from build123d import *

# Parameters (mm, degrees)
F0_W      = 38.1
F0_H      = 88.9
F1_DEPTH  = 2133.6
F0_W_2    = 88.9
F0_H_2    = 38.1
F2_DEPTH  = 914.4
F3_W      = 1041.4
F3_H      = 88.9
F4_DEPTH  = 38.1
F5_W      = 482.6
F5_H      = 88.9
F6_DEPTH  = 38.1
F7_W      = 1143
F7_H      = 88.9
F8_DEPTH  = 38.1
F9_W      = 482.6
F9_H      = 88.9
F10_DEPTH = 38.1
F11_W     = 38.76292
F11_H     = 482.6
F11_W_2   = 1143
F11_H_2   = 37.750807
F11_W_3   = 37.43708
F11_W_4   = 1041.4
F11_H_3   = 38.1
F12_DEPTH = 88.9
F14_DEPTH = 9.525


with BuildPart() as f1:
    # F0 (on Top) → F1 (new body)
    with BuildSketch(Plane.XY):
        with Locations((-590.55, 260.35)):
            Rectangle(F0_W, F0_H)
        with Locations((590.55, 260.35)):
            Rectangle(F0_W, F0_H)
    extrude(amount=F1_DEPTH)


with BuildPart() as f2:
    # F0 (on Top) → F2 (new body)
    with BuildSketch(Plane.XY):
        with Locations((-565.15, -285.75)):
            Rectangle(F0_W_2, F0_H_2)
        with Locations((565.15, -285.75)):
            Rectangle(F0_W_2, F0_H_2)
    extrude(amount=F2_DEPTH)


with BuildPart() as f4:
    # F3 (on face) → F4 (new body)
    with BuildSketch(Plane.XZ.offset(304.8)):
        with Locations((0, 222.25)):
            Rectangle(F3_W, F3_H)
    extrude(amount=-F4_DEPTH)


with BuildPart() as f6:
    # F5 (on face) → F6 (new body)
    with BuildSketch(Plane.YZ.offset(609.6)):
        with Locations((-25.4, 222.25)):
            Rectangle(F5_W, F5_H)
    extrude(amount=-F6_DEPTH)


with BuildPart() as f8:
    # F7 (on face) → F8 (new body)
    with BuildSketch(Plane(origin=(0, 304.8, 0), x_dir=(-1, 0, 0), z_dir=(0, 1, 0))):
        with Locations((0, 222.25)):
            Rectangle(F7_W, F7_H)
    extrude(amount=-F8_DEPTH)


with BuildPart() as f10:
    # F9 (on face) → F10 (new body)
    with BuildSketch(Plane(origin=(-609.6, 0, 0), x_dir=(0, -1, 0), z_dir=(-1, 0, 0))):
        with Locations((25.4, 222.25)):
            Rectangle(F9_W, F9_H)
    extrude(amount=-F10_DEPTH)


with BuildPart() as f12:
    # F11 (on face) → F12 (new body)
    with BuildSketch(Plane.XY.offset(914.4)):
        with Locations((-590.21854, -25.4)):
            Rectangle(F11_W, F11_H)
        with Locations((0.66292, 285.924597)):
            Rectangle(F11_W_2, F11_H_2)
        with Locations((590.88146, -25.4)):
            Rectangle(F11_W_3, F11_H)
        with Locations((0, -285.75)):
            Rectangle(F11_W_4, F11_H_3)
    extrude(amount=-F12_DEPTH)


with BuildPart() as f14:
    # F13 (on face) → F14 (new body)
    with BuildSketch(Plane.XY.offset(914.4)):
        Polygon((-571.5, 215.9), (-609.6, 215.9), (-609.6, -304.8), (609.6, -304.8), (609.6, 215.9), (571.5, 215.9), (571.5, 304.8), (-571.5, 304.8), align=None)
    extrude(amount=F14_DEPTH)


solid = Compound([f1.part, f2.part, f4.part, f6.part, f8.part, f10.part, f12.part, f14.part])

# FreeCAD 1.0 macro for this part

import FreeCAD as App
import Part
import Sketcher

V = App.Vector
Q = App.Units.Quantity


def add_polygon(sketch, points):
    """Adds a closed chain of lines whose ends are joined by coincident constraints."""
    first, n = sketch.GeometryCount, len(points)
    for a, b in zip(points, points[1:] + points[:1]):
        sketch.addGeometry(Part.LineSegment(App.Vector(*a, 0), App.Vector(*b, 0)), False)
    for i in range(n):
        sketch.addConstraint(Sketcher.Constraint("Coincident", first + i, 2, first + (i + 1) % n, 1))

doc = App.newDocument("Part")
params = doc.addObject("Spreadsheet::Sheet", "Params")
for row, (alias, value) in enumerate([
    ("sketch1_width", "1.5 in"),
    ("sketch1_height", "3.5 in"),
    ("pad1_length", "84 in"),
    ("sketch2_width", "3.5 in"),
    ("sketch2_height", "1.5 in"),
    ("pad2_length", "36 in"),
    ("sketch3_width", "41 in"),
    ("sketch3_height", "3.5 in"),
    ("pad3_length", "1.5 in"),
    ("sketch4_width", "19 in"),
    ("sketch4_height", "3.5 in"),
    ("pad4_length", "1.5 in"),
    ("sketch5_width", "45 in"),
    ("sketch5_height", "3.5 in"),
    ("pad5_length", "1.5 in"),
    ("sketch6_width", "19 in"),
    ("sketch6_height", "3.5 in"),
    ("pad6_length", "1.5 in"),
    ("sketch7_width", "45 in"),
    ("sketch7_width2", "41 in"),
    ("sketch7_height", "19 in"),
    ("sketch7_height2", "1.5 in"),
    ("pad7_length", "3.5 in"),
    ("sketch8_width", "48 in"),
    ("sketch8_width2", "45 in"),
    ("sketch8_height", "20.5 in"),
    ("sketch8_height2", "3.5 in"),
    ("pad8_length", "0.375 in"),
], start=1):
    params.set(f"A{row}", alias)
    params.set(f"B{row}", "=" + value)
    params.setAlias(f"B{row}", alias)

body = doc.addObject("PartDesign::Body", "Body")
body.AllowCompound = True

# Sketch on XY plane
sketch1 = doc.addObject("Sketcher::SketchObject", "Sketch")
body.addObject(sketch1)
sketch1.AttachmentSupport = (doc.XY_Plane, [""])
sketch1.MapMode = "FlatFace"
add_polygon(sketch1, [(-609.6, 304.8), (-609.6, 215.9), (-571.5, 215.9), (-571.5, 304.8)])  # lines 0-3
add_polygon(sketch1, [(571.5, 304.8), (571.5, 215.9), (609.6, 215.9), (609.6, 304.8)])  # lines 4-7
sketch1.addConstraint([
    Sketcher.Constraint("Vertical", 0),
    Sketcher.Constraint("Horizontal", 1),
    Sketcher.Constraint("Vertical", 2),
    Sketcher.Constraint("Horizontal", 3),
    Sketcher.Constraint("Vertical", 4),
    Sketcher.Constraint("Horizontal", 5),
    Sketcher.Constraint("Vertical", 6),
    Sketcher.Constraint("Horizontal", 7),
    Sketcher.Constraint("Symmetric", 1, 2, 4, 2, -2),
    Sketcher.Constraint("Symmetric", 3, 2, 6, 2, -2),
    Sketcher.Constraint("DistanceX", 1, 1, 1, 2, Q("1.5 in")),
    Sketcher.Constraint("DistanceY", 0, 2, 0, 1, Q("3.5 in")),
    Sketcher.Constraint("DistanceX", 0, 2, -1, 1, Q("24 in")),
    Sketcher.Constraint("DistanceY", -1, 1, 2, 2, Q("12 in")),
])
sketch1.setExpression("Constraints[18]", "Params.sketch1_width")
sketch1.setExpression("Constraints[19]", "Params.sketch1_height")
pad1 = doc.addObject("PartDesign::Pad", "Pad")
body.addObject(pad1)
pad1.Profile = sketch1
pad1.setExpression("Length", "Params.pad1_length")
body2 = doc.addObject("PartDesign::Body", "Body001")
body2.AllowCompound = True

# Sketch on XY plane
sketch2 = doc.addObject("Sketcher::SketchObject", "Sketch001")
body2.addObject(sketch2)
sketch2.AttachmentSupport = (doc.getObject("XY_Plane001"), [""])
sketch2.MapMode = "FlatFace"
add_polygon(sketch2, [(-609.6, -266.7), (-609.6, -304.8), (-520.7, -304.8), (-520.7, -266.7)])  # lines 0-3
add_polygon(sketch2, [(520.7, -266.7), (520.7, -304.8), (609.6, -304.8), (609.6, -266.7)])  # lines 4-7
sketch2.addConstraint([
    Sketcher.Constraint("Vertical", 0),
    Sketcher.Constraint("Horizontal", 1),
    Sketcher.Constraint("Vertical", 2),
    Sketcher.Constraint("Horizontal", 3),
    Sketcher.Constraint("Vertical", 4),
    Sketcher.Constraint("Horizontal", 5),
    Sketcher.Constraint("Vertical", 6),
    Sketcher.Constraint("Horizontal", 7),
    Sketcher.Constraint("Symmetric", 1, 2, 4, 2, -2),
    Sketcher.Constraint("Symmetric", 3, 2, 6, 2, -2),
    Sketcher.Constraint("DistanceX", 1, 1, 1, 2, Q("3.5 in")),
    Sketcher.Constraint("DistanceY", 0, 2, 0, 1, Q("1.5 in")),
    Sketcher.Constraint("DistanceX", 0, 2, -1, 1, Q("24 in")),
    Sketcher.Constraint("DistanceY", 0, 2, -1, 1, Q("12 in")),
])
sketch2.setExpression("Constraints[18]", "Params.sketch2_width")
sketch2.setExpression("Constraints[19]", "Params.sketch2_height")
pad2 = doc.addObject("PartDesign::Pad", "Pad001")
body2.addObject(pad2)
pad2.Profile = sketch2
pad2.setExpression("Length", "Params.pad2_length")
body3 = doc.addObject("PartDesign::Body", "Body002")

# Sketch on XZ plane
sketch3 = doc.addObject("Sketcher::SketchObject", "Sketch002")
body3.addObject(sketch3)
sketch3.AttachmentSupport = (doc.getObject("XZ_Plane002"), [""])
sketch3.MapMode = "FlatFace"
sketch3.AttachmentOffset = App.Placement(V(0, 0, 12 * 25.4), App.Rotation())
add_polygon(sketch3, [(-520.7, 266.7), (-520.7, 177.8), (520.7, 177.8), (520.7, 266.7)])  # lines 0-3
sketch3.addConstraint([
    Sketcher.Constraint("Vertical", 0),
    Sketcher.Constraint("Horizontal", 1),
    Sketcher.Constraint("Vertical", 2),
    Sketcher.Constraint("Horizontal", 3),
    Sketcher.Constraint("DistanceX", 1, 1, 1, 2, Q("41 in")),
    Sketcher.Constraint("DistanceY", 0, 2, 0, 1, Q("3.5 in")),
    Sketcher.Constraint("DistanceY", -1, 1, 0, 2, Q("7 in")),
    Sketcher.Constraint("DistanceX", 0, 2, -1, 1, Q("20.5 in")),
])
sketch3.setExpression("Constraints[8]", "Params.sketch3_width")
sketch3.setExpression("Constraints[9]", "Params.sketch3_height")
pad3 = doc.addObject("PartDesign::Pad", "Pad002")
body3.addObject(pad3)
pad3.Profile = sketch3
pad3.setExpression("Length", "Params.pad3_length")
pad3.Reversed = True
body4 = doc.addObject("PartDesign::Body", "Body003")

# Sketch on YZ plane
sketch4 = doc.addObject("Sketcher::SketchObject", "Sketch003")
body4.addObject(sketch4)
sketch4.AttachmentSupport = (doc.getObject("YZ_Plane003"), [""])
sketch4.MapMode = "FlatFace"
sketch4.AttachmentOffset = App.Placement(V(0, 0, 24 * 25.4), App.Rotation())
add_polygon(sketch4, [(-266.7, 266.7), (-266.7, 177.8), (215.9, 177.8), (215.9, 266.7)])  # lines 0-3
sketch4.addConstraint([
    Sketcher.Constraint("Vertical", 0),
    Sketcher.Constraint("Horizontal", 1),
    Sketcher.Constraint("Vertical", 2),
    Sketcher.Constraint("Horizontal", 3),
    Sketcher.Constraint("DistanceX", 1, 1, 1, 2, Q("19 in")),
    Sketcher.Constraint("DistanceY", 0, 2, 0, 1, Q("3.5 in")),
    Sketcher.Constraint("DistanceY", -1, 1, 0, 2, Q("7 in")),
    Sketcher.Constraint("DistanceX", 0, 2, -1, 1, Q("10.5 in")),
])
sketch4.setExpression("Constraints[8]", "Params.sketch4_width")
sketch4.setExpression("Constraints[9]", "Params.sketch4_height")
pad4 = doc.addObject("PartDesign::Pad", "Pad003")
body4.addObject(pad4)
pad4.Profile = sketch4
pad4.setExpression("Length", "Params.pad4_length")
pad4.Reversed = True
body5 = doc.addObject("PartDesign::Body", "Body004")

# Sketch on XZ plane
sketch5 = doc.addObject("Sketcher::SketchObject", "Sketch004")
body5.addObject(sketch5)
sketch5.AttachmentSupport = (doc.getObject("XZ_Plane004"), [""])
sketch5.MapMode = "FlatFace"
sketch5.AttachmentOffset = App.Placement(V(0, 0, -12 * 25.4), App.Rotation())
add_polygon(sketch5, [(571.5, 266.7), (571.5, 177.8), (-571.5, 177.8), (-571.5, 266.7)])  # lines 0-3
sketch5.addConstraint([
    Sketcher.Constraint("Vertical", 0),
    Sketcher.Constraint("Horizontal", 1),
    Sketcher.Constraint("Vertical", 2),
    Sketcher.Constraint("Horizontal", 3),
    Sketcher.Constraint("DistanceX", 1, 2, 1, 1, Q("45 in")),
    Sketcher.Constraint("DistanceY", 0, 2, 0, 1, Q("3.5 in")),
    Sketcher.Constraint("DistanceY", -1, 1, 0, 2, Q("7 in")),
    Sketcher.Constraint("DistanceX", -1, 1, 0, 2, Q("22.5 in")),
])
sketch5.setExpression("Constraints[8]", "Params.sketch5_width")
sketch5.setExpression("Constraints[9]", "Params.sketch5_height")
pad5 = doc.addObject("PartDesign::Pad", "Pad004")
body5.addObject(pad5)
pad5.Profile = sketch5
pad5.setExpression("Length", "Params.pad5_length")
body6 = doc.addObject("PartDesign::Body", "Body005")

# Sketch on YZ plane
sketch6 = doc.addObject("Sketcher::SketchObject", "Sketch005")
body6.addObject(sketch6)
sketch6.AttachmentSupport = (doc.getObject("YZ_Plane005"), [""])
sketch6.MapMode = "FlatFace"
sketch6.AttachmentOffset = App.Placement(V(0, 0, -24 * 25.4), App.Rotation())
add_polygon(sketch6, [(215.9, 266.7), (215.9, 177.8), (-266.7, 177.8), (-266.7, 266.7)])  # lines 0-3
sketch6.addConstraint([
    Sketcher.Constraint("Vertical", 0),
    Sketcher.Constraint("Horizontal", 1),
    Sketcher.Constraint("Vertical", 2),
    Sketcher.Constraint("Horizontal", 3),
    Sketcher.Constraint("DistanceX", 1, 2, 1, 1, Q("19 in")),
    Sketcher.Constraint("DistanceY", 0, 2, 0, 1, Q("3.5 in")),
    Sketcher.Constraint("DistanceY", -1, 1, 0, 2, Q("7 in")),
    Sketcher.Constraint("DistanceX", -1, 1, 0, 2, Q("8.5 in")),
])
sketch6.setExpression("Constraints[8]", "Params.sketch6_width")
sketch6.setExpression("Constraints[9]", "Params.sketch6_height")
pad6 = doc.addObject("PartDesign::Pad", "Pad005")
body6.addObject(pad6)
pad6.Profile = sketch6
pad6.setExpression("Length", "Params.pad6_length")
body7 = doc.addObject("PartDesign::Body", "Body006")
body7.AllowCompound = True

# Sketch on XY plane
sketch7 = doc.addObject("Sketcher::SketchObject", "Sketch006")
body7.addObject(sketch7)
sketch7.AttachmentSupport = (doc.getObject("XY_Plane006"), [""])
sketch7.MapMode = "FlatFace"
sketch7.AttachmentOffset = App.Placement(V(0, 0, 36 * 25.4), App.Rotation())
add_polygon(sketch7, [(-609.6, 215.9), (-609.6, -266.7), (-570.83708, -266.7), (-570.83708, 215.9)])  # lines 0-3
add_polygon(sketch7, [(-570.83708, 304.800001), (-570.83708, 267.049194), (572.16292, 267.049194), (572.16292, 304.800001)])  # lines 4-7
add_polygon(sketch7, [(572.16292, 215.9), (572.16292, -266.7), (609.6, -266.7), (609.6, 215.9)])  # lines 8-11
add_polygon(sketch7, [(-520.7, -266.7), (-520.7, -304.8), (520.7, -304.8), (520.7, -266.7)])  # lines 12-15
sketch7.addConstraint([
    Sketcher.Constraint("Vertical", 0),
    Sketcher.Constraint("Horizontal", 1),
    Sketcher.Constraint("Vertical", 2),
    Sketcher.Constraint("Horizontal", 3),
    Sketcher.Constraint("Vertical", 4),
    Sketcher.Constraint("Horizontal", 5),
    Sketcher.Constraint("Vertical", 6),
    Sketcher.Constraint("Horizontal", 7),
    Sketcher.Constraint("Vertical", 8),
    Sketcher.Constraint("Horizontal", 9),
    Sketcher.Constraint("Vertical", 10),
    Sketcher.Constraint("Horizontal", 11),
    Sketcher.Constraint("Vertical", 12),
    Sketcher.Constraint("Horizontal", 13),
    Sketcher.Constraint("Vertical", 14),
    Sketcher.Constraint("Horizontal", 15),
    Sketcher.Constraint("Symmetric", 0, 2, 9, 2, -2),
    Sketcher.Constraint("Horizontal", 3, 2, 10, 2),
    Sketcher.Constraint("Horizontal", 9, 2, 14, 2),
    Sketcher.Constraint("Vertical", 2, 2, 4, 2),
    Sketcher.Constraint("Vertical", 6, 2, 8, 2),
    Sketcher.Constraint("DistanceX", 5, 1, 5, 2, Q("45 in")),
    Sketcher.Constraint("DistanceX", 13, 1, 13, 2, Q("41 in")),
    Sketcher.Constraint("DistanceY", 0, 2, 0, 1, Q("19 in")),
    Sketcher.Constraint("DistanceY", 12, 2, 12, 1, Q("1.5 in")),
    Sketcher.Constraint("DistanceX", 0, 2, -1, 1, Q("24 in")),
    Sketcher.Constraint("DistanceY", -1, 1, 6, 2, Q("12 in")),
    Sketcher.Constraint("DistanceY", 12, 2, -1, 1, Q("12 in")),
    Sketcher.Constraint("DistanceX", 12, 2, -1, 1, Q("20.5 in")),
    Sketcher.Constraint("DistanceX", 1, 1, 1, 2, Q("38.76292 mm")),
    Sketcher.Constraint("DistanceY", 4, 2, 4, 1, Q("37.750807 mm")),
])
sketch7.setExpression("Constraints[37]", "Params.sketch7_width")
sketch7.setExpression("Constraints[38]", "Params.sketch7_width2")
sketch7.setExpression("Constraints[39]", "Params.sketch7_height")
sketch7.setExpression("Constraints[40]", "Params.sketch7_height2")
pad7 = doc.addObject("PartDesign::Pad", "Pad006")
body7.addObject(pad7)
pad7.Profile = sketch7
pad7.setExpression("Length", "Params.pad7_length")
pad7.Reversed = True
body8 = doc.addObject("PartDesign::Body", "Body007")

# Sketch on XY plane
sketch8 = doc.addObject("Sketcher::SketchObject", "Sketch007")
body8.addObject(sketch8)
sketch8.AttachmentSupport = (doc.getObject("XY_Plane007"), [""])
sketch8.MapMode = "FlatFace"
sketch8.AttachmentOffset = App.Placement(V(0, 0, 36 * 25.4), App.Rotation())
add_polygon(sketch8, [(-571.5, 215.9), (-609.6, 215.9), (-609.6, -304.8), (609.6, -304.8), (609.6, 215.9), (571.5, 215.9), (571.5, 304.8), (-571.5, 304.8)])  # lines 0-7
sketch8.addConstraint([
    Sketcher.Constraint("Horizontal", 0),
    Sketcher.Constraint("Vertical", 1),
    Sketcher.Constraint("Horizontal", 2),
    Sketcher.Constraint("Vertical", 3),
    Sketcher.Constraint("Horizontal", 4),
    Sketcher.Constraint("Vertical", 5),
    Sketcher.Constraint("Horizontal", 6),
    Sketcher.Constraint("Vertical", 7),
    Sketcher.Constraint("Symmetric", 0, 2, 3, 2, -2),
    Sketcher.Constraint("Equal", 0, 4),
    Sketcher.Constraint("DistanceX", 2, 1, 2, 2, Q("48 in")),
    Sketcher.Constraint("DistanceX", 6, 2, 6, 1, Q("45 in")),
    Sketcher.Constraint("DistanceY", 1, 2, 1, 1, Q("20.5 in")),
    Sketcher.Constraint("DistanceY", 5, 1, 5, 2, Q("3.5 in")),
    Sketcher.Constraint("DistanceY", 1, 2, -1, 1, Q("12 in")),
])
sketch8.setExpression("Constraints[18]", "Params.sketch8_width")
sketch8.setExpression("Constraints[19]", "Params.sketch8_width2")
sketch8.setExpression("Constraints[20]", "Params.sketch8_height")
sketch8.setExpression("Constraints[21]", "Params.sketch8_height2")
pad8 = doc.addObject("PartDesign::Pad", "Pad007")
body8.addObject(pad8)
pad8.Profile = sketch8
pad8.setExpression("Length", "Params.pad8_length")

doc.recompute()
